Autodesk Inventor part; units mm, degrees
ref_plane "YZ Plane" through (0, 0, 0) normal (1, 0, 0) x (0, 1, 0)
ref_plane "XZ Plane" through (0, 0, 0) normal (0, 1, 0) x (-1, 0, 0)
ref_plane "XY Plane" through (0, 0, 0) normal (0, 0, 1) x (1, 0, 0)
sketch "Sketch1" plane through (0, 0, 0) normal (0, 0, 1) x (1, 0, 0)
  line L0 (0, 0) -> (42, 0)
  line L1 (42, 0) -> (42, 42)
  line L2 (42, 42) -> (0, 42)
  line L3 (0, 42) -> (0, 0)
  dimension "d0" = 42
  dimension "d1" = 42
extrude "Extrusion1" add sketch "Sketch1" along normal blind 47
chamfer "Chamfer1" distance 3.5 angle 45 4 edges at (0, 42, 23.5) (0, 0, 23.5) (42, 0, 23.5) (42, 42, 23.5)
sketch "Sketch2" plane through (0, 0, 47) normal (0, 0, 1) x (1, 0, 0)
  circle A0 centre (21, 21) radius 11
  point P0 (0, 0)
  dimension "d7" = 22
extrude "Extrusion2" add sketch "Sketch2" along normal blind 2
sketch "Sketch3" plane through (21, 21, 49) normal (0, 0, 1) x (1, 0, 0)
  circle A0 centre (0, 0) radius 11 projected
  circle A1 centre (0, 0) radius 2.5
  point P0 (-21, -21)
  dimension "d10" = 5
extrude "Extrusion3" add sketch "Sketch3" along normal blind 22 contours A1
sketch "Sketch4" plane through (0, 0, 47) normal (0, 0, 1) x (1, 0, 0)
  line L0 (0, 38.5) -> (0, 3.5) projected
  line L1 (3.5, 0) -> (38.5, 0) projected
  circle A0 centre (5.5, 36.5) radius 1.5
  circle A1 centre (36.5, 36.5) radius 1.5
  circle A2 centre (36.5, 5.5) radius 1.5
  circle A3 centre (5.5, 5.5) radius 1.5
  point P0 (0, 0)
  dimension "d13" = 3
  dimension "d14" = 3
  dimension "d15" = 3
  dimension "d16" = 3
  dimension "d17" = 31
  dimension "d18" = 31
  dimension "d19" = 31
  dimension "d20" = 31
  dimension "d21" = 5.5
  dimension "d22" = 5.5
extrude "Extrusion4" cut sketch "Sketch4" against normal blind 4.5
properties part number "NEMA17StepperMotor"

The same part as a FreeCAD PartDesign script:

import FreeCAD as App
import Part
import Sketcher


def edges_at(feature, points):
    """Names of the edges that pass closest to the given points."""
    edges = feature.Shape.Edges
    near = lambda p: min(range(len(edges)), key=lambda i: edges[i].distToShape(Part.Vertex(*p))[0])
    return sorted({f"Edge{near(p) + 1}" for p in points})


def add_polygon(sketch, points):
    """Adds a closed chain of lines whose ends are joined by coincident constraints."""
    first, n = sketch.GeometryCount, len(points)
    for a, b in zip(points, points[1:] + points[:1]):
        sketch.addGeometry(Part.LineSegment(App.Vector(*a, 0), App.Vector(*b, 0)), False)
    for i in range(n):
        sketch.addConstraint(Sketcher.Constraint("Coincident", first + i, 2, first + (i + 1) % n, 1))

doc = App.newDocument("Part")
body = doc.addObject("PartDesign::Body", "Body")

sketch1 = body.newObject("Sketcher::SketchObject", "Sketch")
sketch1.AttachmentSupport = (doc.getObject("XY_Plane"), [""])
sketch1.MapMode = "FlatFace"
add_polygon(sketch1, [(0, 42), (0, 0), (42, 0), (42, 42)])
sketch1.addConstraint([
    Sketcher.Constraint("Vertical", 0),
    Sketcher.Constraint("Horizontal", 1),
    Sketcher.Constraint("Vertical", 2),
    Sketcher.Constraint("Horizontal", 3),
    Sketcher.Constraint("Coincident", 0, 2, -1, 1),
    Sketcher.Constraint("Equal", 3, 0),
    Sketcher.Constraint("DistanceX", 1, 1, 1, 2, 42.0),
])
pad1 = body.newObject("PartDesign::Pad", "Pad")
pad1.Profile = sketch1
pad1.Length = 47
doc.recompute()

chamfer = body.newObject("PartDesign::Chamfer", "Chamfer")
chamfer.Base = (pad1, edges_at(pad1, [
    (0, 42, 23.5),
    (0, 0, 23.5),
    (42, 0, 23.5),
    (42, 42, 23.5),
]))
chamfer.Size = 3.5

sketch2 = body.newObject("Sketcher::SketchObject", "Sketch001")
sketch2.AttachmentSupport = (doc.getObject("XY_Plane"), [""])
sketch2.MapMode = "FlatFace"
sketch2.AttachmentOffset = App.Placement(App.Vector(0, 0, 47), App.Rotation())
sketch2.addGeometry(Part.Circle(App.Vector(21, 21, 0), App.Vector(0, 0, 1), 11), False)
sketch2.addConstraint([
    Sketcher.Constraint("Diameter", 0, 22.0),
    Sketcher.Constraint("DistanceX", -1, 1, 0, 3, 21.0),
    Sketcher.Constraint("DistanceY", -1, 1, 0, 3, 21.0),
])
pad2 = body.newObject("PartDesign::Pad", "Pad001")
pad2.Profile = sketch2
pad2.Length = 2

sketch3 = body.newObject("Sketcher::SketchObject", "Sketch002")
sketch3.AttachmentSupport = (doc.getObject("XY_Plane"), [""])
sketch3.MapMode = "FlatFace"
sketch3.AttachmentOffset = App.Placement(App.Vector(0, 0, 49), App.Rotation())
sketch3.addGeometry(Part.Circle(App.Vector(21, 21, 0), App.Vector(0, 0, 1), 2.5), False)
sketch3.addConstraint([
    Sketcher.Constraint("Diameter", 0, 5.0),
    Sketcher.Constraint("DistanceX", -1, 1, 0, 3, 21.0),
    Sketcher.Constraint("DistanceY", -1, 1, 0, 3, 21.0),
])
pad3 = body.newObject("PartDesign::Pad", "Pad002")
pad3.Profile = sketch3
pad3.Length = 22

sketch4 = body.newObject("Sketcher::SketchObject", "Sketch003")
sketch4.AttachmentSupport = (doc.getObject("XY_Plane"), [""])
sketch4.MapMode = "FlatFace"
sketch4.AttachmentOffset = App.Placement(App.Vector(0, 0, 47), App.Rotation())
sketch4.addGeometry([
    Part.Circle(App.Vector(5.5, 36.5, 0), App.Vector(0, 0, 1), 1.5),
    Part.Circle(App.Vector(36.5, 36.5, 0), App.Vector(0, 0, 1), 1.5),
    Part.Circle(App.Vector(36.5, 5.5, 0), App.Vector(0, 0, 1), 1.5),
    Part.Circle(App.Vector(5.5, 5.5, 0), App.Vector(0, 0, 1), 1.5),
], False)
sketch4.addConstraint([
    Sketcher.Constraint("Equal", 0, 1),
    Sketcher.Constraint("Equal", 1, 2),
    Sketcher.Constraint("Equal", 2, 3),
    Sketcher.Constraint("Horizontal", 0, 3, 1, 3),
    Sketcher.Constraint("Horizontal", 2, 3, 3, 3),
    Sketcher.Constraint("Vertical", 1, 3, 2, 3),
    Sketcher.Constraint("Vertical", 0, 3, 3, 3),
    Sketcher.Constraint("Diameter", 0, 3.0),
    Sketcher.Constraint("DistanceX", 0, 3, 1, 3, 31.0),
    Sketcher.Constraint("DistanceY", 2, 3, 1, 3, 31.0),
    Sketcher.Constraint("DistanceX", -1, 1, 0, 3, 5.5),
    Sketcher.Constraint("DistanceY", -1, 1, 2, 3, 5.5),
])
pocket1 = body.newObject("PartDesign::Pocket", "Pocket")
pocket1.Profile = sketch4
pocket1.Length = 4.5

doc.recompute()
